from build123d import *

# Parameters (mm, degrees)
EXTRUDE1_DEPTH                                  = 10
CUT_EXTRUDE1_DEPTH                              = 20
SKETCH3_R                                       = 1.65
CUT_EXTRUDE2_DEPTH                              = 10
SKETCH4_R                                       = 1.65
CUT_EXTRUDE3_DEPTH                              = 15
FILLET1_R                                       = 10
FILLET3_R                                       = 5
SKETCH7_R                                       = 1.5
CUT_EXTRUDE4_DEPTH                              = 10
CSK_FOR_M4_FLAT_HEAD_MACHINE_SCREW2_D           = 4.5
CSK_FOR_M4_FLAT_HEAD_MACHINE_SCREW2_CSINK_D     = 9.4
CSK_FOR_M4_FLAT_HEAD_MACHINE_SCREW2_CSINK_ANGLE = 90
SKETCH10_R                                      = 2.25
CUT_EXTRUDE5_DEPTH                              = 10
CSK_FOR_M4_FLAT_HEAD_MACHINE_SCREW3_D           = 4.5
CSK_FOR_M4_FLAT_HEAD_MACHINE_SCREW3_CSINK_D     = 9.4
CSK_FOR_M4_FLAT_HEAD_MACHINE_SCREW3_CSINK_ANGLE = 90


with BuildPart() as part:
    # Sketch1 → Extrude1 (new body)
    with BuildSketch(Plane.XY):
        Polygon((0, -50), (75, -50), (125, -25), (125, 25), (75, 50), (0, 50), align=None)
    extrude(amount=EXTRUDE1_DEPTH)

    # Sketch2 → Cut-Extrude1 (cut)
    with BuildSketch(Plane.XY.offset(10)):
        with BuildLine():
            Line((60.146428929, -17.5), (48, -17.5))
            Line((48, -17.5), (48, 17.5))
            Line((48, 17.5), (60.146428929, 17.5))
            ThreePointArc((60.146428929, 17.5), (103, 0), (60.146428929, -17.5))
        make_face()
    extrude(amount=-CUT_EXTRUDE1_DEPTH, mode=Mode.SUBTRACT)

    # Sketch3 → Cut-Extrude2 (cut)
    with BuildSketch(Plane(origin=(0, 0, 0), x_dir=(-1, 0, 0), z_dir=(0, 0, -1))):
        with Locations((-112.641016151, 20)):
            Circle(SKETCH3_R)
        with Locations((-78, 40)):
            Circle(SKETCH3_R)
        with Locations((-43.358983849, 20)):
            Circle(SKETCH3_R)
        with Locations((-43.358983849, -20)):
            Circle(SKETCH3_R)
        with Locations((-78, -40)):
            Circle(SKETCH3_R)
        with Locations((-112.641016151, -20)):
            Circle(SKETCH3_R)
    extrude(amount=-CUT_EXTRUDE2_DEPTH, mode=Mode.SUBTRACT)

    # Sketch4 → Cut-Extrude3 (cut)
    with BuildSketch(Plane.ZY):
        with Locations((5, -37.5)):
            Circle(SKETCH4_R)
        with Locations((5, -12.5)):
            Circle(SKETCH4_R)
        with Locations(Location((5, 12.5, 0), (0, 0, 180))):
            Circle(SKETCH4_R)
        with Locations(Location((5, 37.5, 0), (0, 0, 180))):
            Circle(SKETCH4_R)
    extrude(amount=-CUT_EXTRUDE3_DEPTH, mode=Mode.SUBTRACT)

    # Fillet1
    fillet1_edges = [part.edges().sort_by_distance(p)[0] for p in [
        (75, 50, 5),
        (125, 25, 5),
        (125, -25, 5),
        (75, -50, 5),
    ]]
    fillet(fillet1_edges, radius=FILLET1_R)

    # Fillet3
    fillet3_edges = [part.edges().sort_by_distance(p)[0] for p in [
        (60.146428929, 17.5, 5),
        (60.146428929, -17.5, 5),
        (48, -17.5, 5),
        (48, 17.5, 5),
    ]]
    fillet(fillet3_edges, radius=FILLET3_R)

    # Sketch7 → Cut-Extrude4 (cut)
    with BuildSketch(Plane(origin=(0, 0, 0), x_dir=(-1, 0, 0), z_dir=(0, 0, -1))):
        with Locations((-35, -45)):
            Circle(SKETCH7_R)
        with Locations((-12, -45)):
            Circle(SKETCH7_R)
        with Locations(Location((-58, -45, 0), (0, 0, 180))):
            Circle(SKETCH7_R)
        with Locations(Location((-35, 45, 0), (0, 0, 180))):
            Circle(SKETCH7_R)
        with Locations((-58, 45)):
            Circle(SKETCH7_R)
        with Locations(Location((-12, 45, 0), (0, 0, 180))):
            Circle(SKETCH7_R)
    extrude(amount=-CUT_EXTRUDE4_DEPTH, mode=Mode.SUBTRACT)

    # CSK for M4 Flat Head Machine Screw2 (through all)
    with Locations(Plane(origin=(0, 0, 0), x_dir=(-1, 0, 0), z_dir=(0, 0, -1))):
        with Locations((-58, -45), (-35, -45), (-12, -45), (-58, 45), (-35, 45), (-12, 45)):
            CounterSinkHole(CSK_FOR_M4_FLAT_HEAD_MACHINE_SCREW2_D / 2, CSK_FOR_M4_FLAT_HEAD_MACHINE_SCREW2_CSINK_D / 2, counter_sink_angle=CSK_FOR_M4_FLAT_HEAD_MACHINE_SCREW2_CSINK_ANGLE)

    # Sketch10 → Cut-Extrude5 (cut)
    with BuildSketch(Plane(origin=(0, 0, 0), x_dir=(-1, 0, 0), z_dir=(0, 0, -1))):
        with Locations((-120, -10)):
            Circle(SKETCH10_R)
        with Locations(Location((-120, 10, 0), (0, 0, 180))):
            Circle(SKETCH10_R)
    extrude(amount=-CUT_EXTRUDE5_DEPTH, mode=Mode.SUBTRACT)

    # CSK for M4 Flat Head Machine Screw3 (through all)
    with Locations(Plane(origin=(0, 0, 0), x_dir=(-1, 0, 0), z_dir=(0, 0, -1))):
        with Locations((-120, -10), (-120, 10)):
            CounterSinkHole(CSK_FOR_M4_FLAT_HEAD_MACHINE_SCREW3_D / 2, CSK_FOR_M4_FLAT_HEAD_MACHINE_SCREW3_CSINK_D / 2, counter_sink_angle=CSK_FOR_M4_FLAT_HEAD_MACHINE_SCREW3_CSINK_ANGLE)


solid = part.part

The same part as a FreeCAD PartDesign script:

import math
import FreeCAD as App
import Part
import Sketcher
from FreeCAD import Vector
Q = App.Units.Quantity


def edges_at(feature, points):
    """Names of the edges that pass closest to the given points."""
    edges = feature.Shape.Edges
    near = lambda p: min(range(len(edges)), key=lambda i: edges[i].distToShape(Part.Vertex(*p))[0])
    return sorted({f"Edge{near(p) + 1}" for p in points})


def add_polygon(sketch, points):
    """Adds a closed chain of lines whose ends are joined by coincident constraints."""
    first, n = sketch.GeometryCount, len(points)
    for a, b in zip(points, points[1:] + points[:1]):
        sketch.addGeometry(Part.LineSegment(App.Vector(*a, 0), App.Vector(*b, 0)), False)
    for i in range(n):
        sketch.addConstraint(Sketcher.Constraint("Coincident", first + i, 2, first + (i + 1) % n, 1))

doc = App.newDocument("Part")
body = doc.addObject("PartDesign::Body", "Body")

sketch1 = body.newObject("Sketcher::SketchObject", "Sketch")
sketch1.AttachmentSupport = (doc.getObject("XY_Plane"), [""])
sketch1.MapMode = "FlatFace"
add_polygon(sketch1, [(0, -50), (75, -50), (125, -25), (125, 25), (75, 50), (0, 50)])
sketch1.addConstraint([
    Sketcher.Constraint("Horizontal", 0),
    Sketcher.Constraint("Vertical", 2),
    Sketcher.Constraint("Horizontal", 4),
    Sketcher.Constraint("Vertical", 5),
    Sketcher.Constraint("Symmetric", 4, 2, 5, 2, -1, 1),
    Sketcher.Constraint("Vertical", 0, 2, 3, 2),
    Sketcher.Constraint("Equal", 1, 3),
    Sketcher.Constraint("DistanceX", 0, 1, 0, 2, Q("75 mm")),
    Sketcher.Constraint("DistanceY", 2, 1, 2, 2, Q("50 mm")),
    Sketcher.Constraint("DistanceY", 5, 2, 5, 1, Q("100 mm")),
    Sketcher.Constraint("DistanceX", -1, 1, 1, 2, Q("125 mm")),
])
pad1 = body.newObject("PartDesign::Pad", "Pad")
pad1.Profile = sketch1
pad1.Length = 10

sketch2 = body.newObject("Sketcher::SketchObject", "Sketch001")
sketch2.AttachmentSupport = (doc.getObject("XY_Plane"), [""])
sketch2.MapMode = "FlatFace"
sketch2.AttachmentOffset = App.Placement(Vector(0, 0, 10), App.Rotation())
sketch2.addGeometry([
    Part.LineSegment(Vector(48, -18, 0), Vector(60, -18, 0)),
    Part.ArcOfCircle(Part.Circle(Vector(78, 0, 0), Vector(0, 0, 1), 25), math.radians(-136), math.radians(136)),
    Part.LineSegment(Vector(60, 18, 0), Vector(48, 18, 0)),
    Part.LineSegment(Vector(48, 18, 0), Vector(48, -18, 0)),
], False)
sketch2.addConstraint([
    Sketcher.Constraint("Coincident", 0, 2, 1, 1),
    Sketcher.Constraint("Coincident", 1, 2, 2, 1),
    Sketcher.Constraint("Coincident", 2, 2, 3, 1),
    Sketcher.Constraint("Coincident", 3, 2, 0, 1),
    Sketcher.Constraint("Horizontal", 0),
    Sketcher.Constraint("Horizontal", 2),
    Sketcher.Constraint("Vertical", 3),
    Sketcher.Constraint("Symmetric", 0, 2, 1, 2, -1),
    Sketcher.Constraint("Radius", 1, Q("25 mm")),
    Sketcher.Constraint("DistanceY", 3, 2, 3, 1, Q("35 mm")),
    Sketcher.Constraint("DistanceX", -1, 1, 1, 3, Q("78 mm")),
    Sketcher.Constraint("DistanceX", -1, 1, 2, 2, Q("48 mm")),
])
pocket1 = body.newObject("PartDesign::Pocket", "Pocket")
pocket1.Profile = sketch2
pocket1.Length = 20

sketch3 = body.newObject("Sketcher::SketchObject", "Sketch002")
sketch3.AttachmentSupport = (doc.getObject("XY_Plane"), [""])
sketch3.MapMode = "FlatFace"
sketch3.addGeometry([
    Part.Circle(Vector(112.6, 20, 0), Vector(0, 0, 1), 1.6),
    Part.Circle(Vector(78, 40, 0), Vector(0, 0, 1), 1.6),
    Part.Circle(Vector(43.4, 20, 0), Vector(0, 0, 1), 1.6),
    Part.Circle(Vector(43.4, -20, 0), Vector(0, 0, 1), 1.6),
    Part.Circle(Vector(78, -40, 0), Vector(0, 0, 1), 1.6),
    Part.Circle(Vector(112.6, -20, 0), Vector(0, 0, 1), 1.6),
], False)
sketch3.addConstraint([
    Sketcher.Constraint("Equal", 0, 1),
    Sketcher.Constraint("Equal", 1, 2),
    Sketcher.Constraint("Equal", 2, 3),
    Sketcher.Constraint("Equal", 3, 4),
    Sketcher.Constraint("Equal", 4, 5),
    Sketcher.Constraint("Symmetric", 2, 3, 3, 3, -1),
    Sketcher.Constraint("Symmetric", 1, 3, 4, 3, -1),
    Sketcher.Constraint("Symmetric", 0, 3, 5, 3, -1),
    Sketcher.Constraint("Horizontal", 0, 3, 2, 3),
    Sketcher.Constraint("Diameter", 0, Q("3.3 mm")),
    Sketcher.Constraint("DistanceY", -1, 1, 0, 3, Q("20 mm")),
    Sketcher.Constraint("DistanceX", -1, 1, 1, 3, Q("78 mm")),
    Sketcher.Constraint("DistanceY", -1, 1, 1, 3, Q("40 mm")),
    Sketcher.Constraint("DistanceX", -1, 1, 0, 3, Q("112.641016 mm")),
    Sketcher.Constraint("DistanceX", -1, 1, 2, 3, Q("43.358984 mm")),
])
pocket2 = body.newObject("PartDesign::Pocket", "Pocket001")
pocket2.Profile = sketch3
pocket2.Length = 10
pocket2.Reversed = True

sketch4 = body.newObject("Sketcher::SketchObject", "Sketch003")
sketch4.AttachmentSupport = (doc.getObject("YZ_Plane"), [""])
sketch4.MapMode = "FlatFace"
sketch4.addGeometry([
    Part.Circle(Vector(-37.5, 5, 0), Vector(0, 0, 1), 1.6),
    Part.Circle(Vector(-12.5, 5, 0), Vector(0, 0, 1), 1.6),
    Part.Circle(Vector(12.5, 5, 0), Vector(0, 0, 1), 1.6),
    Part.Circle(Vector(37.5, 5, 0), Vector(0, 0, 1), 1.6),
], False)
sketch4.addConstraint([
    Sketcher.Constraint("Equal", 0, 1),
    Sketcher.Constraint("Equal", 1, 2),
    Sketcher.Constraint("Equal", 2, 3),
    Sketcher.Constraint("Symmetric", 1, 3, 2, 3, -2),
    Sketcher.Constraint("Symmetric", 0, 3, 3, 3, -2),
    Sketcher.Constraint("Horizontal", 0, 3, 1, 3),
    Sketcher.Constraint("Diameter", 0, Q("3.3 mm")),
    Sketcher.Constraint("DistanceY", -1, 1, 0, 3, Q("5 mm")),
    Sketcher.Constraint("DistanceX", 0, 3, 1, 3, Q("25 mm")),
    Sketcher.Constraint("DistanceX", 1, 3, 2, 3, Q("25 mm")),
])
pocket3 = body.newObject("PartDesign::Pocket", "Pocket002")
pocket3.Profile = sketch4
pocket3.Length = 15
pocket3.Reversed = True
doc.recompute()

fillet = body.newObject("PartDesign::Fillet", "Fillet")
fillet.Base = (pocket3, edges_at(pocket3, [
    (75, 50, 5),
    (125, 25, 5),
    (125, -25, 5),
    (75, -50, 5),
]))
fillet.Radius = 10
doc.recompute()

fillet2 = body.newObject("PartDesign::Fillet", "Fillet001")
fillet2.Base = (fillet, edges_at(fillet, [
    (60.146, 17.5, 5),
    (60.146, -17.5, 5),
    (48, -17.5, 5),
    (48, 17.5, 5),
]))
fillet2.Radius = 5

sketch5 = body.newObject("Sketcher::SketchObject", "Sketch004")
sketch5.AttachmentSupport = (doc.getObject("XY_Plane"), [""])
sketch5.MapMode = "FlatFace"
sketch5.addGeometry([
    Part.Circle(Vector(35, -45, 0), Vector(0, 0, 1), 1.5),
    Part.Circle(Vector(12, -45, 0), Vector(0, 0, 1), 1.5),
    Part.Circle(Vector(58, -45, 0), Vector(0, 0, 1), 1.5),
    Part.Circle(Vector(35, 45, 0), Vector(0, 0, 1), 1.5),
    Part.Circle(Vector(58, 45, 0), Vector(0, 0, 1), 1.5),
    Part.Circle(Vector(12, 45, 0), Vector(0, 0, 1), 1.5),
], False)
sketch5.addConstraint([
    Sketcher.Constraint("Equal", 0, 1),
    Sketcher.Constraint("Equal", 1, 2),
    Sketcher.Constraint("Equal", 2, 3),
    Sketcher.Constraint("Equal", 3, 4),
    Sketcher.Constraint("Equal", 4, 5),
    Sketcher.Constraint("Symmetric", 0, 3, 3, 3, -1),
    Sketcher.Constraint("Symmetric", 2, 3, 4, 3, -1),
    Sketcher.Constraint("Symmetric", 1, 3, 5, 3, -1),
    Sketcher.Constraint("Horizontal", 0, 3, 1, 3),
    Sketcher.Constraint("Horizontal", 1, 3, 2, 3),
    Sketcher.Constraint("Diameter", 0, Q("3 mm")),
    Sketcher.Constraint("DistanceX", -1, 1, 0, 3, Q("35 mm")),
    Sketcher.Constraint("DistanceY", 0, 3, -1, 1, Q("45 mm")),
    Sketcher.Constraint("DistanceX", -1, 1, 1, 3, Q("12 mm")),
    Sketcher.Constraint("DistanceX", -1, 1, 2, 3, Q("58 mm")),
])
pocket4 = body.newObject("PartDesign::Pocket", "Pocket003")
pocket4.Profile = sketch5
pocket4.Length = 10
pocket4.Reversed = True

sketch6 = body.newObject("Sketcher::SketchObject", "Sketch005")
sketch6.AttachmentSupport = (doc.getObject("XY_Plane"), [""])
sketch6.MapMode = "FlatFace"
sketch6.addGeometry([
    Part.Circle(Vector(58, -45, 0), Vector(0, 0, 1), 2.2),
    Part.Circle(Vector(35, -45, 0), Vector(0, 0, 1), 2.2),
    Part.Circle(Vector(12, -45, 0), Vector(0, 0, 1), 2.2),
    Part.Circle(Vector(58, 45, 0), Vector(0, 0, 1), 2.2),
    Part.Circle(Vector(35, 45, 0), Vector(0, 0, 1), 2.2),
    Part.Circle(Vector(12, 45, 0), Vector(0, 0, 1), 2.2),
], False)
sketch6.addConstraint([
    Sketcher.Constraint("Equal", 0, 1),
    Sketcher.Constraint("Equal", 1, 2),
    Sketcher.Constraint("Equal", 2, 3),
    Sketcher.Constraint("Equal", 3, 4),
    Sketcher.Constraint("Equal", 4, 5),
    Sketcher.Constraint("Symmetric", 0, 3, 3, 3, -1),
    Sketcher.Constraint("Symmetric", 1, 3, 4, 3, -1),
    Sketcher.Constraint("Symmetric", 2, 3, 5, 3, -1),
    Sketcher.Constraint("Horizontal", 0, 3, 1, 3),
    Sketcher.Constraint("Horizontal", 1, 3, 2, 3),
    Sketcher.Constraint("Diameter", 0, Q("4.5 mm")),
    Sketcher.Constraint("DistanceX", -1, 1, 0, 3, Q("58 mm")),
    Sketcher.Constraint("DistanceY", 0, 3, -1, 1, Q("45 mm")),
    Sketcher.Constraint("DistanceX", -1, 1, 1, 3, Q("35 mm")),
    Sketcher.Constraint("DistanceX", -1, 1, 2, 3, Q("12 mm")),
])
doc.recompute()
hole = body.newObject("PartDesign::Hole", "Hole")
hole.Profile = sketch6
hole.ThreadType = "None"
hole.Diameter = 4.5
hole.DepthType = "ThroughAll"
hole.HoleCutType = "Countersink"
hole.HoleCutDiameter = 9.4
hole.HoleCutCountersinkAngle = 90
hole.Reversed = True

sketch7 = body.newObject("Sketcher::SketchObject", "Sketch006")
sketch7.AttachmentSupport = (doc.getObject("XY_Plane"), [""])
sketch7.MapMode = "FlatFace"
sketch7.addGeometry([
    Part.Circle(Vector(120, -10, 0), Vector(0, 0, 1), 2.2),
    Part.Circle(Vector(120, 10, 0), Vector(0, 0, 1), 2.2),
], False)
sketch7.addConstraint([
    Sketcher.Constraint("Equal", 0, 1),
    Sketcher.Constraint("Symmetric", 0, 3, 1, 3, -1),
    Sketcher.Constraint("Diameter", 0, Q("4.5 mm")),
    Sketcher.Constraint("DistanceX", -1, 1, 0, 3, Q("120 mm")),
    Sketcher.Constraint("DistanceY", 0, 3, -1, 1, Q("10 mm")),
])
pocket5 = body.newObject("PartDesign::Pocket", "Pocket004")
pocket5.Profile = sketch7
pocket5.Length = 10
pocket5.Reversed = True

sketch8 = body.newObject("Sketcher::SketchObject", "Sketch007")
sketch8.AttachmentSupport = (doc.getObject("XY_Plane"), [""])
sketch8.MapMode = "FlatFace"
sketch8.addGeometry([
    Part.Circle(Vector(120, -10, 0), Vector(0, 0, 1), 2.2),
    Part.Circle(Vector(120, 10, 0), Vector(0, 0, 1), 2.2),
], False)
sketch8.addConstraint([
    Sketcher.Constraint("Equal", 0, 1),
    Sketcher.Constraint("Symmetric", 0, 3, 1, 3, -1),
    Sketcher.Constraint("Diameter", 0, Q("4.5 mm")),
    Sketcher.Constraint("DistanceX", -1, 1, 0, 3, Q("120 mm")),
    Sketcher.Constraint("DistanceY", 0, 3, -1, 1, Q("10 mm")),
])
doc.recompute()
hole2 = body.newObject("PartDesign::Hole", "Hole001")
hole2.Profile = sketch8
hole2.ThreadType = "None"
hole2.Diameter = 4.5
hole2.DepthType = "ThroughAll"
hole2.HoleCutType = "Countersink"
hole2.HoleCutDiameter = 9.4
hole2.HoleCutCountersinkAngle = 90
hole2.Reversed = True

doc.recompute()
